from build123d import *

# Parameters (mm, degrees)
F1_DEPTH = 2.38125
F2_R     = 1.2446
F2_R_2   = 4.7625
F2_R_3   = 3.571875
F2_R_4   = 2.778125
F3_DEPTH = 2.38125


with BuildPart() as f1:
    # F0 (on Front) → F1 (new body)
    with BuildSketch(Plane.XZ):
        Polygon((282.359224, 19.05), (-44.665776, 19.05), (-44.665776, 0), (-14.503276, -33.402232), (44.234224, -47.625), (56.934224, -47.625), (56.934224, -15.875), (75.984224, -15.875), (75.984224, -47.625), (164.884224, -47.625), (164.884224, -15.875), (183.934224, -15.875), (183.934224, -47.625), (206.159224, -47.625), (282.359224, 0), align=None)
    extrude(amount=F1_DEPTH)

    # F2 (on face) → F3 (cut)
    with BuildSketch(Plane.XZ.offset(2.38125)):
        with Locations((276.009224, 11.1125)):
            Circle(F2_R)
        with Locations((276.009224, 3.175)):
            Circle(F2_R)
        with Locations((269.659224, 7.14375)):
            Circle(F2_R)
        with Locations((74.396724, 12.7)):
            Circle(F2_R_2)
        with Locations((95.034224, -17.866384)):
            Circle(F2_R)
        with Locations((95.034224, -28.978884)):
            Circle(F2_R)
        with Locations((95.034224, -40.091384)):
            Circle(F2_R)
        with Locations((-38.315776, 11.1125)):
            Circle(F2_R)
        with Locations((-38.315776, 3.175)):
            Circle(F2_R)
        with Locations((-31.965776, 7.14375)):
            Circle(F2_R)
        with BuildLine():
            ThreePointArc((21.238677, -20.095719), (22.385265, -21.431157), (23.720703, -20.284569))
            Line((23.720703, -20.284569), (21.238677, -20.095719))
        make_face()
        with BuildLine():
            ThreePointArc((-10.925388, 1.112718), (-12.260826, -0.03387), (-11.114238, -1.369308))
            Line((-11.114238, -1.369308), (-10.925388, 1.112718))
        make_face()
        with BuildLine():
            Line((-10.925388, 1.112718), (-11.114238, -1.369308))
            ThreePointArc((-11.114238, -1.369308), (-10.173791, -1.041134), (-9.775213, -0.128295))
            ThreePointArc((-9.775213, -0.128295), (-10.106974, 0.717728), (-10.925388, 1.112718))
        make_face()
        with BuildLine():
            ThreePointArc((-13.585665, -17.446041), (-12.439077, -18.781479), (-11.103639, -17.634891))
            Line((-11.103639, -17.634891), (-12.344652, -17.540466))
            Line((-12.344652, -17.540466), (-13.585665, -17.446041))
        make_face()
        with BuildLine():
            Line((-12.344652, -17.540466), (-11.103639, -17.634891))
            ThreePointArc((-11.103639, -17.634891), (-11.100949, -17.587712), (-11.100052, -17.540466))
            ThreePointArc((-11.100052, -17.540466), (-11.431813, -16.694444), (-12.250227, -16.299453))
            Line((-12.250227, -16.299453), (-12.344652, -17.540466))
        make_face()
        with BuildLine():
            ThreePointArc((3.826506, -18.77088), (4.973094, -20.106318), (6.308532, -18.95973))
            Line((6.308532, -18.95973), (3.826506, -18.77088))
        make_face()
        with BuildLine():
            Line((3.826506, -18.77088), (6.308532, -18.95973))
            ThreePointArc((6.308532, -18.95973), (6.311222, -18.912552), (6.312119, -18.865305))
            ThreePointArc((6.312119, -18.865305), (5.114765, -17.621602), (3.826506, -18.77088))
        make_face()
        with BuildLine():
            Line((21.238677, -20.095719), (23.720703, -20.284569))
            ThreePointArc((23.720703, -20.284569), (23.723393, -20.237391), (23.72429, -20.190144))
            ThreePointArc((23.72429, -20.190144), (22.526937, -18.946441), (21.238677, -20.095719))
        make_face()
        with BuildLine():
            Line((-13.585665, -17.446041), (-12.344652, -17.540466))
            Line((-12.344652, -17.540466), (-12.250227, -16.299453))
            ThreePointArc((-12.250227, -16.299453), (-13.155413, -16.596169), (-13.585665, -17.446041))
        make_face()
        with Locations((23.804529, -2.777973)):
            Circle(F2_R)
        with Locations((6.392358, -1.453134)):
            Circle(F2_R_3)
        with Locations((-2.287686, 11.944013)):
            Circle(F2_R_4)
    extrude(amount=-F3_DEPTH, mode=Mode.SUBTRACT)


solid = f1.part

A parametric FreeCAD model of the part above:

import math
import FreeCAD as App
import Part
import Sketcher
Q = App.Units.Quantity

doc = App.newDocument("Part")
body = doc.addObject("PartDesign::Body", "Body")

# Sketch on XZ plane
sketch1 = body.newObject("Sketcher::SketchObject", "Sketch")
sketch1.AttachmentSupport = (doc.getObject("XZ_Plane"), [""])
sketch1.MapMode = "FlatFace"
sketch1.addGeometry([
    Part.LineSegment(App.Vector(282, 19, 0), App.Vector(-45, 19, 0)),  # 0
    Part.LineSegment(App.Vector(-45, 19, 0), App.Vector(-45, 0, 0)),  # 1
    Part.LineSegment(App.Vector(-45, 0, 0), App.Vector(-15, -33, 0)),  # 2
    Part.LineSegment(App.Vector(-15, -33, 0), App.Vector(44, -48, 0)),  # 3
    Part.LineSegment(App.Vector(44, -48, 0), App.Vector(57, -48, 0)),  # 4
    Part.LineSegment(App.Vector(57, -48, 0), App.Vector(57, -16, 0)),  # 5
    Part.LineSegment(App.Vector(57, -16, 0), App.Vector(76, -16, 0)),  # 6
    Part.LineSegment(App.Vector(76, -16, 0), App.Vector(76, -48, 0)),  # 7
    Part.LineSegment(App.Vector(76, -48, 0), App.Vector(165, -48, 0)),  # 8
    Part.LineSegment(App.Vector(165, -48, 0), App.Vector(165, -16, 0)),  # 9
    Part.LineSegment(App.Vector(165, -16, 0), App.Vector(184, -16, 0)),  # 10
    Part.LineSegment(App.Vector(184, -16, 0), App.Vector(184, -48, 0)),  # 11
    Part.LineSegment(App.Vector(184, -48, 0), App.Vector(206, -48, 0)),  # 12
    Part.LineSegment(App.Vector(206, -48, 0), App.Vector(282, 0, 0)),  # 13
    Part.LineSegment(App.Vector(282, 0, 0), App.Vector(282, 19, 0)),  # 14
], False)
sketch1.addConstraint([
    Sketcher.Constraint("Coincident", 0, 2, 1, 1),
    Sketcher.Constraint("Coincident", 1, 2, 2, 1),
    Sketcher.Constraint("Coincident", 2, 2, 3, 1),
    Sketcher.Constraint("Coincident", 3, 2, 4, 1),
    Sketcher.Constraint("Coincident", 4, 2, 5, 1),
    Sketcher.Constraint("Coincident", 5, 2, 6, 1),
    Sketcher.Constraint("Coincident", 6, 2, 7, 1),
    Sketcher.Constraint("Coincident", 7, 2, 8, 1),
    Sketcher.Constraint("Coincident", 8, 2, 9, 1),
    Sketcher.Constraint("Coincident", 9, 2, 10, 1),
    Sketcher.Constraint("Coincident", 10, 2, 11, 1),
    Sketcher.Constraint("Coincident", 11, 2, 12, 1),
    Sketcher.Constraint("Coincident", 12, 2, 13, 1),
    Sketcher.Constraint("Coincident", 13, 2, 14, 1),
    Sketcher.Constraint("Coincident", 14, 2, 0, 1),
    Sketcher.Constraint("Horizontal", 0),
    Sketcher.Constraint("Vertical", 1),
    Sketcher.Constraint("Horizontal", 4),
    Sketcher.Constraint("Vertical", 5),
    Sketcher.Constraint("Horizontal", 6),
    Sketcher.Constraint("Vertical", 7),
    Sketcher.Constraint("Horizontal", 8),
    Sketcher.Constraint("Vertical", 9),
    Sketcher.Constraint("Horizontal", 10),
    Sketcher.Constraint("Vertical", 11),
    Sketcher.Constraint("Horizontal", 12),
    Sketcher.Constraint("Vertical", 14),
    Sketcher.Constraint("PointOnObject", 1, 2, -1),
    Sketcher.Constraint("PointOnObject", 13, 2, -1),
    Sketcher.Constraint("Horizontal", 4, 2, 7, 2),
    Sketcher.Constraint("Horizontal", 6, 2, 9, 2),
    Sketcher.Constraint("Horizontal", 8, 2, 11, 2),
    Sketcher.Constraint("Equal", 6, 10),
    Sketcher.Constraint("Equal", 10, 1),
    Sketcher.Constraint("DistanceX", 4, 1, 4, 2, Q("0.5 in")),
    Sketcher.Constraint("DistanceX", 8, 1, 8, 2, Q("3.5 in")),
    Sketcher.Constraint("DistanceX", 1, 2, 4, 2, Q("4 in")),
    Sketcher.Constraint("DistanceX", 5, 2, 10, 2, Q("5 in")),
    Sketcher.Constraint("DistanceX", 12, 2, 13, 2, Q("3 in")),
    Sketcher.Constraint("DistanceY", 5, 1, 5, 2, Q("1.25 in")),
    Sketcher.Constraint("DistanceX", 0, 2, 0, 1, Q("12.875 in")),
    Sketcher.Constraint("DistanceY", 3, 2, -1, 1, Q("1.875 in")),
    Sketcher.Constraint("DistanceX", 1, 2, 2, 2, Q("1.1875 in")),
    Sketcher.Constraint("DistanceY", 2, 2, -1, 1, 33.402232),
    Sketcher.Constraint("DistanceX", 0, 2, -1, 1, 44.665776),
])
pad1 = body.newObject("PartDesign::Pad", "Pad")
pad1.Profile = sketch1
pad1.Length = Q("0.09375 in")

# Sketch on XZ plane
sketch2 = body.newObject("Sketcher::SketchObject", "Sketch001")
sketch2.AttachmentSupport = (doc.getObject("XZ_Plane"), [""])
sketch2.MapMode = "FlatFace"
sketch2.AttachmentOffset = App.Placement(App.Vector(0, 0, 0.09375 * 25.4), App.Rotation())
sketch2.addGeometry([
    Part.Circle(App.Vector(276.009224, 11.1125, 0), App.Vector(0, 0, 1), 1.2446),  # 0
    Part.Circle(App.Vector(276.009224, 3.175, 0), App.Vector(0, 0, 1), 1.2446),  # 1
    Part.Circle(App.Vector(269.659224, 7.14375, 0), App.Vector(0, 0, 1), 1.2446),  # 2
    Part.Circle(App.Vector(74.396724, 12.7, 0), App.Vector(0, 0, 1), 4.7625),  # 3
    Part.Circle(App.Vector(95.034224, -17.866384, 0), App.Vector(0, 0, 1), 1.2446),  # 4
    Part.Circle(App.Vector(95.034224, -28.978884, 0), App.Vector(0, 0, 1), 1.2446),  # 5
    Part.Circle(App.Vector(95.034224, -40.091384, 0), App.Vector(0, 0, 1), 1.2446),  # 6
    Part.Circle(App.Vector(-38.315776, 11.1125, 0), App.Vector(0, 0, 1), 1.2446),  # 7
    Part.Circle(App.Vector(-38.315776, 3.175, 0), App.Vector(0, 0, 1), 1.2446),  # 8
    Part.Circle(App.Vector(-31.965776, 7.14375, 0), App.Vector(0, 0, 1), 1.2446),  # 9
    Part.ArcOfCircle(Part.Circle(App.Vector(22.47969, -20.190144, 0), App.Vector(0, 0, 1), 1.2446), math.radians(175.648918), math.radians(355.648918)),  # 10
    Part.ArcOfCircle(Part.Circle(App.Vector(22.479789, -20.190149, 0), App.Vector(0, 0, 1), 1.244501), math.radians(-4.35121), math.radians(0.000219)),  # 11
    Part.ArcOfCircle(Part.Circle(App.Vector(22.47969, -20.190144, 0), App.Vector(0, 0, 1), 1.2446), math.radians(-0.000003), math.radians(175.648921)),  # 12
    Part.ArcOfCircle(Part.Circle(App.Vector(-11.019813, -0.128295, 0), App.Vector(0, 0, 1), 1.2446), math.radians(85.648918), math.radians(265.648918)),  # 13
    Part.ArcOfCircle(Part.Circle(App.Vector(-11.019814, -0.128294, 0), App.Vector(0, 0, 1), 1.244601), math.radians(-94.351039), math.radians(-0.00004)),  # 14
    Part.ArcOfCircle(Part.Circle(App.Vector(-11.019812, -0.128294, 0), App.Vector(0, 0, 1), 1.244599), math.radians(-0.000035), math.radians(85.648949)),  # 15
    Part.ArcOfCircle(Part.Circle(App.Vector(-12.344652, -17.540466, 0), App.Vector(0, 0, 1), 1.2446), math.radians(175.648918), math.radians(355.648918)),  # 16
    Part.ArcOfCircle(Part.Circle(App.Vector(-12.344606, -17.540469, 0), App.Vector(0, 0, 1), 1.244554), math.radians(-4.351118), math.radians(0.000127)),  # 17
    Part.ArcOfCircle(Part.Circle(App.Vector(-12.344653, -17.540467, 0), App.Vector(0, 0, 1), 1.244601), math.radians(0.000045), math.radians(85.648869)),  # 18
    Part.ArcOfCircle(Part.Circle(App.Vector(-12.344653, -17.540465, 0), App.Vector(0, 0, 1), 1.244599), math.radians(85.648878), math.radians(175.648957)),  # 19
    Part.ArcOfCircle(Part.Circle(App.Vector(5.067519, -18.865305, 0), App.Vector(0, 0, 1), 1.2446), math.radians(175.648918), math.radians(355.648918)),  # 20
    Part.ArcOfCircle(Part.Circle(App.Vector(5.067618, -18.86531, 0), App.Vector(0, 0, 1), 1.244501), math.radians(-4.35121), math.radians(0.000219)),  # 21
    Part.ArcOfCircle(Part.Circle(App.Vector(5.067519, -18.865305, 0), App.Vector(0, 0, 1), 1.2446), math.radians(-0.000002), math.radians(175.648919)),  # 22
    Part.Circle(App.Vector(23.804529, -2.777973, 0), App.Vector(0, 0, 1), 1.2446),  # 23
    Part.Circle(App.Vector(6.392358, -1.453134, 0), App.Vector(0, 0, 1), 3.571875),  # 24
    Part.Circle(App.Vector(-2.287686, 11.944013, 0), App.Vector(0, 0, 1), 2.778125),  # 25
], False)
sketch2.addConstraint([
    Sketcher.Constraint("Coincident", 10, 2, 11, 1),
    Sketcher.Constraint("Coincident", 11, 2, 12, 1),
    Sketcher.Constraint("Coincident", 12, 2, 10, 1),
    Sketcher.Constraint("Coincident", 13, 2, 14, 1),
    Sketcher.Constraint("Coincident", 14, 2, 15, 1),
    Sketcher.Constraint("Coincident", 15, 2, 13, 1),
    Sketcher.Constraint("Coincident", 16, 2, 17, 1),
    Sketcher.Constraint("Coincident", 17, 2, 18, 1),
    Sketcher.Constraint("Coincident", 18, 2, 19, 1),
    Sketcher.Constraint("Coincident", 19, 2, 16, 1),
    Sketcher.Constraint("Coincident", 20, 2, 21, 1),
    Sketcher.Constraint("Coincident", 21, 2, 22, 1),
    Sketcher.Constraint("Coincident", 22, 2, 20, 1),
    Sketcher.Constraint("Coincident", 12, 3, 10, 3),
    Sketcher.Constraint("Coincident", 14, 3, 13, 3),
    Sketcher.Constraint("Coincident", 18, 3, 16, 3),
    Sketcher.Constraint("Coincident", 19, 3, 16, 3),
    Sketcher.Constraint("Coincident", 22, 3, 20, 3),
    Sketcher.Constraint("Diameter", 0, Q("0.098 in")),
    Sketcher.Constraint("Diameter", 1, Q("0.098 in")),
    Sketcher.Constraint("Diameter", 2, Q("0.098 in")),
    Sketcher.Constraint("Diameter", 3, Q("0.375 in")),
    Sketcher.Constraint("Diameter", 4, Q("0.098 in")),
    Sketcher.Constraint("Diameter", 5, Q("0.098 in")),
    Sketcher.Constraint("Diameter", 6, Q("0.098 in")),
    Sketcher.Constraint("Diameter", 7, Q("0.098 in")),
    Sketcher.Constraint("Diameter", 8, Q("0.098 in")),
    Sketcher.Constraint("Diameter", 9, Q("0.098 in")),
    Sketcher.Constraint("Diameter", 23, Q("0.098 in")),
    Sketcher.Constraint("Diameter", 24, Q("0.28125 in")),
    Sketcher.Constraint("Diameter", 25, Q("0.21875 in")),
    Sketcher.Constraint("Radius", 10, Q("0.049 in")),
    Sketcher.Constraint("Radius", 13, Q("0.049 in")),
    Sketcher.Constraint("Radius", 15, Q("0.049 in")),
    Sketcher.Constraint("Radius", 16, Q("0.049 in")),
    Sketcher.Constraint("Radius", 20, Q("0.049 in")),
    Sketcher.Constraint("DistanceX", 9, 3, 4, 3, Q("5 in")),
    Sketcher.Constraint("DistanceX", 9, 3, 5, 3, Q("5 in")),
    Sketcher.Constraint("DistanceY", -1, 1, 3, 3, Q("0.5 in")),
    Sketcher.Constraint("Radius", 11, 1.244501),
    Sketcher.Constraint("Radius", 21, 1.244501),
    Sketcher.Constraint("DistanceX", 2, 3, 0, 3, Q("0.25 in")),
    Sketcher.Constraint("DistanceX", 2, 3, 1, 3, Q("0.25 in")),
    Sketcher.Constraint("DistanceX", 7, 3, 4, 3, Q("5.25 in")),
    Sketcher.Constraint("DistanceX", 7, 3, 6, 3, Q("5.25 in")),
    Sketcher.Constraint("DistanceX", 8, 3, 4, 3, Q("5.25 in")),
    Sketcher.Constraint("DistanceY", -1, 1, 0, 3, Q("0.4375 in")),
    Sketcher.Constraint("DistanceY", -1, 1, 1, 3, Q("0.125 in")),
    Sketcher.Constraint("DistanceY", -1, 1, 2, 3, Q("0.28125 in")),
    Sketcher.Constraint("DistanceY", -1, 1, 7, 3, Q("0.4375 in")),
    Sketcher.Constraint("DistanceY", -1, 1, 8, 3, Q("0.125 in")),
    Sketcher.Constraint("DistanceY", -1, 1, 9, 3, Q("0.28125 in")),
    Sketcher.Constraint("DistanceX", 3, 3, 2, 3, Q("7.6875 in")),
    Sketcher.Constraint("DistanceX", 3, 3, 4, 3, Q("0.8125 in")),
    Sketcher.Constraint("DistanceY", 5, 3, 4, 3, Q("0.4375 in")),
    Sketcher.Constraint("DistanceY", 6, 3, 5, 3, Q("0.4375 in")),
    Sketcher.Constraint("Radius", 17, 1.244554),
    Sketcher.Constraint("DistanceY", 11, 3, 9, 3, 27.333899),
    Sketcher.Constraint("DistanceX", -1, 1, 10, 3, 22.47969),
    Sketcher.Constraint("DistanceY", 17, 3, -1, 1, 17.540469),
    Sketcher.Constraint("DistanceX", -1, 1, 20, 3, 5.067519),
    Sketcher.Constraint("DistanceY", 21, 3, -1, 1, 18.86531),
    Sketcher.Constraint("DistanceX", -1, 1, 23, 3, 23.804529),
    Sketcher.Constraint("DistanceY", 10, 2, -1, 1, 20.284569),
    Sketcher.Constraint("DistanceY", 12, 2, -1, 1, 20.095719),
    Sketcher.Constraint("DistanceX", 15, 2, -1, 1, 10.925388),
    Sketcher.Constraint("DistanceX", 16, 2, -1, 1, 11.103639),
    Sketcher.Constraint("DistanceY", 16, 2, -1, 1, 17.634891),
    Sketcher.Constraint("DistanceY", 19, 2, -1, 1, 17.446041),
    Sketcher.Constraint("DistanceX", -1, 1, 20, 2, 6.308532),
    Sketcher.Constraint("DistanceY", 22, 2, -1, 1, 18.77088),
    Sketcher.Constraint("DistanceY", 10, 3, 4, 3, 2.32376),
    Sketcher.Constraint("DistanceY", 12, 3, 13, 3, 20.061849),
    Sketcher.Constraint("DistanceX", 16, 3, 13, 3, 1.324839),
    Sketcher.Constraint("DistanceX", 9, 3, 17, 3, 19.62117),
    Sketcher.Constraint("DistanceY", 12, 3, 23, 3, 17.412171),
    Sketcher.Constraint("DistanceX", 21, 3, 24, 3, 1.32474),
    Sketcher.Constraint("DistanceY", 24, 3, 15, 3, 1.32484),
    Sketcher.Constraint("DistanceY", 11, 2, 23, 3, 17.412171),
    Sketcher.Constraint("DistanceX", 13, 2, 25, 3, 8.826552),
    Sketcher.Constraint("DistanceY", 13, 2, 25, 3, 13.313321),
    Sketcher.Constraint("DistanceX", 13, 2, 15, 2, 0.18885),
    Sketcher.Constraint("DistanceX", 17, 3, 18, 2, 0.094379),
    Sketcher.Constraint("DistanceY", 14, 2, -1, 1, 0.128295),
    Sketcher.Constraint("DistanceY", 17, 2, -1, 1, 17.540466),
    Sketcher.Constraint("DistanceY", 21, 2, -1, 1, 18.865305),
])
pocket1 = body.newObject("PartDesign::Pocket", "Pocket")
pocket1.Profile = sketch2
pocket1.Length = Q("0.09375 in")

doc.recompute()
